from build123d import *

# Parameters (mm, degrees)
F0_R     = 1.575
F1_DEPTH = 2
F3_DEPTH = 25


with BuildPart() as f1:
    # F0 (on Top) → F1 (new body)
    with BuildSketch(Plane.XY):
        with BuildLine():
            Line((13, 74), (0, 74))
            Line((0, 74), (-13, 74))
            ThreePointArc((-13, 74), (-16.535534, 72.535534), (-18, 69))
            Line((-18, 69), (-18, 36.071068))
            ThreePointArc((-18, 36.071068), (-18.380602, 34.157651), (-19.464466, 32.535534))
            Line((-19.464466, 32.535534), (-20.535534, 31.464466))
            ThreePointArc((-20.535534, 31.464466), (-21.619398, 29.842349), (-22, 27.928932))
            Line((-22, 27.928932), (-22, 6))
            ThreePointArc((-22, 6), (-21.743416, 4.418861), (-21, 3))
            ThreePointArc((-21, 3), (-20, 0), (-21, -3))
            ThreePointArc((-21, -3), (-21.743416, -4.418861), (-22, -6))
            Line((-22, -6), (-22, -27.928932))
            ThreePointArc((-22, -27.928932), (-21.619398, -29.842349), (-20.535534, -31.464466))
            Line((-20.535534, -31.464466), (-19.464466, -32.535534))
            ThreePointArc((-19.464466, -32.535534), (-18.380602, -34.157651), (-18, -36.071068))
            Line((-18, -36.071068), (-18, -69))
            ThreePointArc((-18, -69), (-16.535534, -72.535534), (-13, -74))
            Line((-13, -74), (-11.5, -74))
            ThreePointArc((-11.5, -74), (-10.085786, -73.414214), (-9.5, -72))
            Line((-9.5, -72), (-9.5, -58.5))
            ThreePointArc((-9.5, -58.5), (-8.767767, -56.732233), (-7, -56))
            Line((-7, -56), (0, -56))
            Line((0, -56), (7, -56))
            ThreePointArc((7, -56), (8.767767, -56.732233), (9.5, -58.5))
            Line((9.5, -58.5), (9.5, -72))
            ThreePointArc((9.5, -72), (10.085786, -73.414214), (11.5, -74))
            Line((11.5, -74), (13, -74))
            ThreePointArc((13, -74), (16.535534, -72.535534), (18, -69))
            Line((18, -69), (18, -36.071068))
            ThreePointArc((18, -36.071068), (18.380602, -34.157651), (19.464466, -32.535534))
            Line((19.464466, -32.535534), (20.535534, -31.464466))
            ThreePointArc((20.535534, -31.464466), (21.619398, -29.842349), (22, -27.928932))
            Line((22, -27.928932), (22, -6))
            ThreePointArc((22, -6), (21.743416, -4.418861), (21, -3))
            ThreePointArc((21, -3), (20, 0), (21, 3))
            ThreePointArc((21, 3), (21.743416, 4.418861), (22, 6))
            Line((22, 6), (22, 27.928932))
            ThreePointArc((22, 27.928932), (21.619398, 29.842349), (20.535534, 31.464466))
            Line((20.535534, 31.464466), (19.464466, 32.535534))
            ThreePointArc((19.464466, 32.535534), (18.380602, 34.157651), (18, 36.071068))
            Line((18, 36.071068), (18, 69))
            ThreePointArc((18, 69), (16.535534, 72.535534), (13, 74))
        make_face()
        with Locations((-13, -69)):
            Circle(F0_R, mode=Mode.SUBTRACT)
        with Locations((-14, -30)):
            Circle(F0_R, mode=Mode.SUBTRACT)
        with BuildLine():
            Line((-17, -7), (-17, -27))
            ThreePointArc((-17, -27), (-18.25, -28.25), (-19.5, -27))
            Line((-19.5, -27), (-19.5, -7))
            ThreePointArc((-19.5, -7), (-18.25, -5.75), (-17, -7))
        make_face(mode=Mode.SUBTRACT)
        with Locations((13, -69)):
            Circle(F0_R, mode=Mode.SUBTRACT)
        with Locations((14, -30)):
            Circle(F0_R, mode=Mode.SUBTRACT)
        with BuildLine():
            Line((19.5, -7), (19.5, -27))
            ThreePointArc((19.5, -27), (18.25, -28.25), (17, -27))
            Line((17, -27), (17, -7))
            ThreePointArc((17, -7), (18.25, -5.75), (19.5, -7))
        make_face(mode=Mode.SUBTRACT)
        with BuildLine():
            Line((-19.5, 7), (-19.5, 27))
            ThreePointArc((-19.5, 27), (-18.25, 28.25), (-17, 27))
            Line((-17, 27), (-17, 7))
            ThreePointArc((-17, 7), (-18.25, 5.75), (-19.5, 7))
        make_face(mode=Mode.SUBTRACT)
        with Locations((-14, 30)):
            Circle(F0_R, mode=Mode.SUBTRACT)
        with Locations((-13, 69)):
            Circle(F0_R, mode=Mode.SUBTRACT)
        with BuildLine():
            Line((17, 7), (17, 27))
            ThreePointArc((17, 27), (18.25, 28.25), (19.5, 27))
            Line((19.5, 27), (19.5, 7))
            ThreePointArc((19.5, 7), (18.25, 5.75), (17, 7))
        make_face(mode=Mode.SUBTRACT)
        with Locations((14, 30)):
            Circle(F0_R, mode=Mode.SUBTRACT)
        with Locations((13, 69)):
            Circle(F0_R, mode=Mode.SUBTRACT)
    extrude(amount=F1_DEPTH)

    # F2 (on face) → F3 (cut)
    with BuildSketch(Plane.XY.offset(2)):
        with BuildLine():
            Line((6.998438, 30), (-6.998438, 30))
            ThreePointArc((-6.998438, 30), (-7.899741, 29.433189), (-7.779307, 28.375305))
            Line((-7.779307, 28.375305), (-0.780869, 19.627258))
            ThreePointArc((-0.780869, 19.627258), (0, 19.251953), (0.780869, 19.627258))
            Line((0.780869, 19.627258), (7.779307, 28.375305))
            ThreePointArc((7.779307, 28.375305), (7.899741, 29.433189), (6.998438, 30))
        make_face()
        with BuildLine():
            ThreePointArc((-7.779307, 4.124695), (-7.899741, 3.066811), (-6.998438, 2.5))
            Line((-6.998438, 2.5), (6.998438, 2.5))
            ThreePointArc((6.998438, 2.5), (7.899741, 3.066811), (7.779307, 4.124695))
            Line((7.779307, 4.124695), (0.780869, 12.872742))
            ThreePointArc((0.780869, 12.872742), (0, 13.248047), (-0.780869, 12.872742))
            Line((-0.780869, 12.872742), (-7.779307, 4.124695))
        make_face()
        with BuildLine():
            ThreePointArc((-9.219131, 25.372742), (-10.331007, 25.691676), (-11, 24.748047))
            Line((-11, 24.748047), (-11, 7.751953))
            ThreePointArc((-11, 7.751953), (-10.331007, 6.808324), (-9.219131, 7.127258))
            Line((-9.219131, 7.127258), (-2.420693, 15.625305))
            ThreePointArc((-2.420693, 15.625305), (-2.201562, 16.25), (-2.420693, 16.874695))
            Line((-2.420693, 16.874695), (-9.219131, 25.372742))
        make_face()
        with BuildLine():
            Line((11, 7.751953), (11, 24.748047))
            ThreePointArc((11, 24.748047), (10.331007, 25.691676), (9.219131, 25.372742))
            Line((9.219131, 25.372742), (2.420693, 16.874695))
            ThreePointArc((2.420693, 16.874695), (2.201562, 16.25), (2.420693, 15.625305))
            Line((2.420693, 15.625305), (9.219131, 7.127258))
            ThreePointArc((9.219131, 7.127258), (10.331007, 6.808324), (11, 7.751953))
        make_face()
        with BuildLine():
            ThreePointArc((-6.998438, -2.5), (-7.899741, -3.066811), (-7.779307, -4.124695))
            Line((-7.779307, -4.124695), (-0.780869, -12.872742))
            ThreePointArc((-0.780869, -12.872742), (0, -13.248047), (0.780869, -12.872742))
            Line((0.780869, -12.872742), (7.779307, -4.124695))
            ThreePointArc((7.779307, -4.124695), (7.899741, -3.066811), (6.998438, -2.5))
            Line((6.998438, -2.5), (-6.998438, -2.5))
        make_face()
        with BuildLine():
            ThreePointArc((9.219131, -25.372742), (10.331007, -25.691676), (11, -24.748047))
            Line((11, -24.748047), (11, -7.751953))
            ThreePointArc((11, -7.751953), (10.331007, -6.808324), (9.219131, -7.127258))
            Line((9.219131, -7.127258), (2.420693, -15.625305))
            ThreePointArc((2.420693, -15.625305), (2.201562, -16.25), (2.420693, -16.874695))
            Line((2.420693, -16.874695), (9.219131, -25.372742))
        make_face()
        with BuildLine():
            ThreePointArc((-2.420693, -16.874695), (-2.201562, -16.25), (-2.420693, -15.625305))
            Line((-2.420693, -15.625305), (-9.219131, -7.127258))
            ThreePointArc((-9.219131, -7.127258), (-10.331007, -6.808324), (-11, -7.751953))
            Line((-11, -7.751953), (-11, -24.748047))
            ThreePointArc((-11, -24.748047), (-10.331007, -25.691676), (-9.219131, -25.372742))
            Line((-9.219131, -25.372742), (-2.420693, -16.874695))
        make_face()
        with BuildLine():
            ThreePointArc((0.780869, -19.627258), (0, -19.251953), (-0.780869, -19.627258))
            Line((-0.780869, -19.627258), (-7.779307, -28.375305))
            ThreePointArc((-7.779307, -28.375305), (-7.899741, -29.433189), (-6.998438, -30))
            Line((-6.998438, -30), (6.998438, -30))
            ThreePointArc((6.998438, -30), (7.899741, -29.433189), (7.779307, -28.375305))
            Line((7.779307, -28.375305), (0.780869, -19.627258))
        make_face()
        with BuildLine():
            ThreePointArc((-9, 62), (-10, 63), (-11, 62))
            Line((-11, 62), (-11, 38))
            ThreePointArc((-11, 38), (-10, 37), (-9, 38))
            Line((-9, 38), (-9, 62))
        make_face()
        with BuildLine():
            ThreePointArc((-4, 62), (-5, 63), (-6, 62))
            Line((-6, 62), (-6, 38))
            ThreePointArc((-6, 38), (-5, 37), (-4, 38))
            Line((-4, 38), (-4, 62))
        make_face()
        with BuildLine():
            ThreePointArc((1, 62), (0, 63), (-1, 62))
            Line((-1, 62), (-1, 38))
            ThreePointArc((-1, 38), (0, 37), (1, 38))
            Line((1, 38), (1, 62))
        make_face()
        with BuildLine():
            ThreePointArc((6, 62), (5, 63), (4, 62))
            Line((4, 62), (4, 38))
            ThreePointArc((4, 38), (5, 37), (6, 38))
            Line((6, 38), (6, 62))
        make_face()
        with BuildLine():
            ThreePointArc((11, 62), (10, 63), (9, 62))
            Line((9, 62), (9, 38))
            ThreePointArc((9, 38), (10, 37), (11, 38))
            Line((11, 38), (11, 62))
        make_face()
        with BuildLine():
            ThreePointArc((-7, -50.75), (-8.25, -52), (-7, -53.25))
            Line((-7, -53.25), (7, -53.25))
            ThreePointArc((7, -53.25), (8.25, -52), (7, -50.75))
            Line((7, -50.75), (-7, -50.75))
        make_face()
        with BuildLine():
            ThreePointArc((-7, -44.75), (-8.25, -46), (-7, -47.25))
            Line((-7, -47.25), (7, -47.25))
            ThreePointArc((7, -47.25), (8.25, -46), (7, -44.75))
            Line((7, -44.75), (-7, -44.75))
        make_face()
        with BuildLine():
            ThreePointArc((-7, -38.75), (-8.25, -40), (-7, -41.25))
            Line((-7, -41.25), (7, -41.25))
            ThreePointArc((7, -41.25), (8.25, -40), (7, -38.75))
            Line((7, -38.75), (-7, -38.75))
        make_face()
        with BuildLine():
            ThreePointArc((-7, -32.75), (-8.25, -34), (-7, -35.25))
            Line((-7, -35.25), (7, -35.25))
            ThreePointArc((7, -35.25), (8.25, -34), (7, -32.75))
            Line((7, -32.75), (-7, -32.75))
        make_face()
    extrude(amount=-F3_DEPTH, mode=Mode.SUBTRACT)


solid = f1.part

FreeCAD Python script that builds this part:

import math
import FreeCAD as App
import Part
import Sketcher
from FreeCAD import Vector

doc = App.newDocument("Part")
body = doc.addObject("PartDesign::Body", "Body")

# Sketch on XY plane
sketch1 = body.newObject("Sketcher::SketchObject", "Sketch")
sketch1.AttachmentSupport = (doc.getObject("XY_Plane"), [""])
sketch1.MapMode = "FlatFace"
sketch1.addGeometry([
    Part.LineSegment(Vector(13, 74, 0), Vector(-13, 74, 0)),  # 0
    Part.ArcOfCircle(Part.Circle(Vector(-13, 69, 0), Vector(0, 0, 1), 5), math.radians(89.999996), math.radians(180.000004)),  # 1
    Part.LineSegment(Vector(-18, 69, 0), Vector(-18, 36.071068, 0)),  # 2
    Part.ArcOfCircle(Part.Circle(Vector(-22.999998, 36.071067, 0), Vector(0, 0, 1), 4.999998), math.radians(-45.000009), math.radians(0.000012)),  # 3
    Part.LineSegment(Vector(-19.464466, 32.535534, 0), Vector(-20.535534, 31.464466, 0)),  # 4
    Part.ArcOfCircle(Part.Circle(Vector(-17.000002, 27.928933, 0), Vector(0, 0, 1), 4.999998), math.radians(134.999991), math.radians(180.000012)),  # 5
    Part.LineSegment(Vector(-22, 27.928932, 0), Vector(-22, 6, 0)),  # 6
    Part.ArcOfCircle(Part.Circle(Vector(-16.999992, 6.000003, 0), Vector(0, 0, 1), 5.000008), math.radians(-179.999971), math.radians(-143.130131)),  # 7
    Part.ArcOfCircle(Part.Circle(Vector(-25, 0, 0), Vector(0, 0, 1), 5), math.radians(-36.869898), math.radians(36.869898)),  # 8
    Part.ArcOfCircle(Part.Circle(Vector(-16.999992, -6.000003, 0), Vector(0, 0, 1), 5.000008), math.radians(143.130131), math.radians(179.999971)),  # 9
    Part.LineSegment(Vector(-22, -6, 0), Vector(-22, -27.928932, 0)),  # 10
    Part.ArcOfCircle(Part.Circle(Vector(-17.000002, -27.928933, 0), Vector(0, 0, 1), 4.999998), math.radians(179.999988), math.radians(225.000009)),  # 11
    Part.LineSegment(Vector(-20.535534, -31.464466, 0), Vector(-19.464466, -32.535534, 0)),  # 12
    Part.ArcOfCircle(Part.Circle(Vector(-22.999998, -36.071067, 0), Vector(0, 0, 1), 4.999998), math.radians(-0.000012), math.radians(45.000009)),  # 13
    Part.LineSegment(Vector(-18, -36.071068, 0), Vector(-18, -69, 0)),  # 14
    Part.ArcOfCircle(Part.Circle(Vector(-13, -69, 0), Vector(0, 0, 1), 5), math.radians(179.999996), math.radians(270.000004)),  # 15
    Part.LineSegment(Vector(-13, -74, 0), Vector(-11.5, -74, 0)),  # 16
    Part.ArcOfCircle(Part.Circle(Vector(-11.499999, -72.000001, 0), Vector(0, 0, 1), 1.999999), math.radians(-90.000043), math.radians(0.000043)),  # 17
    Part.LineSegment(Vector(-9.5, -72, 0), Vector(-9.5, -58.5, 0)),  # 18
    Part.ArcOfCircle(Part.Circle(Vector(-7, -58.5, 0), Vector(0, 0, 1), 2.5), math.radians(89.999996), math.radians(180.000004)),  # 19
    Part.LineSegment(Vector(-7, -56, 0), Vector(7, -56, 0)),  # 20
    Part.ArcOfCircle(Part.Circle(Vector(7, -58.5, 0), Vector(0, 0, 1), 2.5), math.radians(-0.000004), math.radians(90.000004)),  # 21
    Part.LineSegment(Vector(9.5, -58.5, 0), Vector(9.5, -72, 0)),  # 22
    Part.ArcOfCircle(Part.Circle(Vector(11.499999, -72.000001, 0), Vector(0, 0, 1), 1.999999), math.radians(179.999957), math.radians(270.000043)),  # 23
    Part.LineSegment(Vector(11.5, -74, 0), Vector(13, -74, 0)),  # 24
    Part.ArcOfCircle(Part.Circle(Vector(13, -69, 0), Vector(0, 0, 1), 5), math.radians(-90.000004), math.radians(0.000004)),  # 25
    Part.LineSegment(Vector(18, -69, 0), Vector(18, -36.071068, 0)),  # 26
    Part.ArcOfCircle(Part.Circle(Vector(22.999998, -36.071067, 0), Vector(0, 0, 1), 4.999998), math.radians(134.999991), math.radians(180.000012)),  # 27
    Part.LineSegment(Vector(19.464466, -32.535534, 0), Vector(20.535534, -31.464466, 0)),  # 28
    Part.ArcOfCircle(Part.Circle(Vector(17.000002, -27.928933, 0), Vector(0, 0, 1), 4.999998), math.radians(-45.000009), math.radians(0.000012)),  # 29
    Part.LineSegment(Vector(22, -27.928932, 0), Vector(22, -6, 0)),  # 30
    Part.ArcOfCircle(Part.Circle(Vector(16.999992, -6.000003, 0), Vector(0, 0, 1), 5.000008), math.radians(0.000029), math.radians(36.869869)),  # 31
    Part.ArcOfCircle(Part.Circle(Vector(25, 0, 0), Vector(0, 0, 1), 5), math.radians(143.130102), math.radians(216.869898)),  # 32
    Part.ArcOfCircle(Part.Circle(Vector(16.999992, 6.000003, 0), Vector(0, 0, 1), 5.000008), math.radians(-36.869869), math.radians(-0.000029)),  # 33
    Part.LineSegment(Vector(22, 6, 0), Vector(22, 27.928932, 0)),  # 34
    Part.ArcOfCircle(Part.Circle(Vector(17.000002, 27.928933, 0), Vector(0, 0, 1), 4.999998), math.radians(-0.000012), math.radians(45.000009)),  # 35
    Part.LineSegment(Vector(20.535534, 31.464466, 0), Vector(19.464466, 32.535534, 0)),  # 36
    Part.ArcOfCircle(Part.Circle(Vector(22.999998, 36.071067, 0), Vector(0, 0, 1), 4.999998), math.radians(179.999988), math.radians(225.000009)),  # 37
    Part.LineSegment(Vector(18, 36.071068, 0), Vector(18, 69, 0)),  # 38
    Part.ArcOfCircle(Part.Circle(Vector(13, 69, 0), Vector(0, 0, 1), 5), math.radians(-0.000004), math.radians(90.000004)),  # 39
    Part.Circle(Vector(-13, -69, 0), Vector(0, 0, 1), 1.575),  # 40
    Part.Circle(Vector(-14, -30, 0), Vector(0, 0, 1), 1.575),  # 41
    Part.ArcOfCircle(Part.Circle(Vector(-18.25, -7, 0), Vector(0, 0, 1), 1.25), math.radians(0), math.radians(180)),  # 42
    Part.LineSegment(Vector(-17, -7, 0), Vector(-17, -27, 0)),  # 43
    Part.ArcOfCircle(Part.Circle(Vector(-18.25, -27, 0), Vector(0, 0, 1), 1.25), math.radians(180), math.radians(360)),  # 44
    Part.LineSegment(Vector(-19.5, -27, 0), Vector(-19.5, -7, 0)),  # 45
    Part.Circle(Vector(13, -69, 0), Vector(0, 0, 1), 1.575),  # 46
    Part.Circle(Vector(14, -30, 0), Vector(0, 0, 1), 1.575),  # 47
    Part.ArcOfCircle(Part.Circle(Vector(18.25, -7, 0), Vector(0, 0, 1), 1.25), math.radians(0), math.radians(180)),  # 48
    Part.LineSegment(Vector(19.5, -7, 0), Vector(19.5, -27, 0)),  # 49
    Part.ArcOfCircle(Part.Circle(Vector(18.25, -27, 0), Vector(0, 0, 1), 1.25), math.radians(180), math.radians(360)),  # 50
    Part.LineSegment(Vector(17, -27, 0), Vector(17, -7, 0)),  # 51
    Part.ArcOfCircle(Part.Circle(Vector(-18.25, 7, 0), Vector(0, 0, 1), 1.25), math.radians(180), math.radians(360)),  # 52
    Part.LineSegment(Vector(-19.5, 7, 0), Vector(-19.5, 27, 0)),  # 53
    Part.ArcOfCircle(Part.Circle(Vector(-18.25, 27, 0), Vector(0, 0, 1), 1.25), math.radians(0), math.radians(180)),  # 54
    Part.LineSegment(Vector(-17, 27, 0), Vector(-17, 7, 0)),  # 55
    Part.Circle(Vector(-14, 30, 0), Vector(0, 0, 1), 1.575),  # 56
    Part.Circle(Vector(-13, 69, 0), Vector(0, 0, 1), 1.575),  # 57
    Part.ArcOfCircle(Part.Circle(Vector(18.25, 7, 0), Vector(0, 0, 1), 1.25), math.radians(180), math.radians(360)),  # 58
    Part.LineSegment(Vector(17, 7, 0), Vector(17, 27, 0)),  # 59
    Part.ArcOfCircle(Part.Circle(Vector(18.25, 27, 0), Vector(0, 0, 1), 1.25), math.radians(0), math.radians(180)),  # 60
    Part.LineSegment(Vector(19.5, 27, 0), Vector(19.5, 7, 0)),  # 61
    Part.Circle(Vector(14, 30, 0), Vector(0, 0, 1), 1.575),  # 62
    Part.Circle(Vector(13, 69, 0), Vector(0, 0, 1), 1.575),  # 63
], False)
sketch1.addConstraint([
    Sketcher.Constraint("Tangent", 0, 2, 1, 1),
    Sketcher.Constraint("Tangent", 1, 2, 2, 1),
    Sketcher.Constraint("Tangent", 2, 2, 3, 2),
    Sketcher.Constraint("Tangent", 3, 1, 4, 1),
    Sketcher.Constraint("Tangent", 4, 2, 5, 1),
    Sketcher.Constraint("Tangent", 5, 2, 6, 1),
    Sketcher.Constraint("Tangent", 6, 2, 7, 1),
    Sketcher.Constraint("Tangent", 7, 2, 8, 2),
    Sketcher.Constraint("Tangent", 8, 1, 9, 1),
    Sketcher.Constraint("Tangent", 9, 2, 10, 1),
    Sketcher.Constraint("Tangent", 10, 2, 11, 1),
    Sketcher.Constraint("Tangent", 11, 2, 12, 1),
    Sketcher.Constraint("Tangent", 12, 2, 13, 2),
    Sketcher.Constraint("Tangent", 13, 1, 14, 1),
    Sketcher.Constraint("Tangent", 14, 2, 15, 1),
    Sketcher.Constraint("Tangent", 15, 2, 16, 1),
    Sketcher.Constraint("Tangent", 16, 2, 17, 1),
    Sketcher.Constraint("Tangent", 17, 2, 18, 1),
    Sketcher.Constraint("Tangent", 18, 2, 19, 2),
    Sketcher.Constraint("Tangent", 19, 1, 20, 1),
    Sketcher.Constraint("Tangent", 20, 2, 21, 2),
    Sketcher.Constraint("Tangent", 21, 1, 22, 1),
    Sketcher.Constraint("Tangent", 22, 2, 23, 1),
    Sketcher.Constraint("Tangent", 23, 2, 24, 1),
    Sketcher.Constraint("Tangent", 24, 2, 25, 1),
    Sketcher.Constraint("Tangent", 25, 2, 26, 1),
    Sketcher.Constraint("Tangent", 26, 2, 27, 2),
    Sketcher.Constraint("Tangent", 27, 1, 28, 1),
    Sketcher.Constraint("Tangent", 28, 2, 29, 1),
    Sketcher.Constraint("Tangent", 29, 2, 30, 1),
    Sketcher.Constraint("Tangent", 30, 2, 31, 1),
    Sketcher.Constraint("Tangent", 31, 2, 32, 2),
    Sketcher.Constraint("Tangent", 32, 1, 33, 1),
    Sketcher.Constraint("Tangent", 33, 2, 34, 1),
    Sketcher.Constraint("Tangent", 34, 2, 35, 1),
    Sketcher.Constraint("Tangent", 35, 2, 36, 1),
    Sketcher.Constraint("Tangent", 36, 2, 37, 2),
    Sketcher.Constraint("Tangent", 37, 1, 38, 1),
    Sketcher.Constraint("Tangent", 38, 2, 39, 1),
    Sketcher.Constraint("Tangent", 39, 2, 0, 1),
    Sketcher.Constraint("Tangent", 42, 1, 43, 1),
    Sketcher.Constraint("Tangent", 43, 2, 44, 2),
    Sketcher.Constraint("Tangent", 44, 1, 45, 1),
    Sketcher.Constraint("Tangent", 45, 2, 42, 2),
    Sketcher.Constraint("Tangent", 48, 1, 49, 1),
    Sketcher.Constraint("Tangent", 49, 2, 50, 2),
    Sketcher.Constraint("Tangent", 50, 1, 51, 1),
    Sketcher.Constraint("Tangent", 51, 2, 48, 2),
    Sketcher.Constraint("Tangent", 52, 1, 53, 1),
    Sketcher.Constraint("Tangent", 53, 2, 54, 2),
    Sketcher.Constraint("Tangent", 54, 1, 55, 1),
    Sketcher.Constraint("Tangent", 55, 2, 52, 2),
    Sketcher.Constraint("Tangent", 58, 1, 59, 1),
    Sketcher.Constraint("Tangent", 59, 2, 60, 2),
    Sketcher.Constraint("Tangent", 60, 1, 61, 1),
    Sketcher.Constraint("Tangent", 61, 2, 58, 2),
    Sketcher.Constraint("Horizontal", 0),
    Sketcher.Constraint("Vertical", 2),
    Sketcher.Constraint("Vertical", 6),
    Sketcher.Constraint("Vertical", 10),
    Sketcher.Constraint("Vertical", 14),
    Sketcher.Constraint("Horizontal", 16),
    Sketcher.Constraint("Vertical", 18),
    Sketcher.Constraint("Horizontal", 20),
    Sketcher.Constraint("Vertical", 22),
    Sketcher.Constraint("Horizontal", 24),
    Sketcher.Constraint("Vertical", 26),
    Sketcher.Constraint("Vertical", 30),
    Sketcher.Constraint("Vertical", 34),
    Sketcher.Constraint("Vertical", 38),
    Sketcher.Constraint("Vertical", 43),
    Sketcher.Constraint("Vertical", 45),
    Sketcher.Constraint("Vertical", 49),
    Sketcher.Constraint("Vertical", 51),
    Sketcher.Constraint("Vertical", 53),
    Sketcher.Constraint("Vertical", 55),
    Sketcher.Constraint("Vertical", 59),
    Sketcher.Constraint("Vertical", 61),
    Sketcher.Constraint("Coincident", 40, 3, 15, 3),
    Sketcher.Constraint("Coincident", 46, 3, 25, 3),
    Sketcher.Constraint("Coincident", 57, 3, 1, 3),
    Sketcher.Constraint("Coincident", 63, 3, 39, 3),
    Sketcher.Constraint("Equal", 1, 3),
    Sketcher.Constraint("Equal", 3, 5),
    Sketcher.Constraint("Equal", 1, 8),
    Sketcher.Constraint("Equal", 7, 9),
    Sketcher.Constraint("Equal", 5, 11),
    Sketcher.Constraint("Equal", 11, 13),
    Sketcher.Constraint("Equal", 13, 15),
    Sketcher.Constraint("Equal", 19, 21),
    Sketcher.Constraint("Equal", 17, 23),
    Sketcher.Constraint("Equal", 15, 25),
    Sketcher.Constraint("Equal", 25, 27),
    Sketcher.Constraint("Equal", 27, 29),
    Sketcher.Constraint("Equal", 9, 31),
    Sketcher.Constraint("Equal", 25, 32),
    Sketcher.Constraint("Equal", 31, 33),
    Sketcher.Constraint("Equal", 29, 35),
    Sketcher.Constraint("Equal", 35, 37),
    Sketcher.Constraint("Equal", 37, 39),
    Sketcher.Constraint("Equal", 40, 41),
    Sketcher.Constraint("Equal", 41, 46),
    Sketcher.Constraint("Equal", 46, 47),
    Sketcher.Constraint("Equal", 44, 48),
    Sketcher.Constraint("Equal", 50, 52),
    Sketcher.Constraint("Equal", 47, 56),
    Sketcher.Constraint("Equal", 56, 57),
    Sketcher.Constraint("Equal", 54, 58),
    Sketcher.Constraint("Equal", 57, 62),
    Sketcher.Constraint("Equal", 62, 63),
    Sketcher.Constraint("Symmetric", 1, 3, 25, 3, -1, 1),
    Sketcher.Constraint("Symmetric", 5, 3, 29, 3, -1, 1),
    Sketcher.Constraint("Symmetric", 8, 3, 32, 3, -1, 1),
    Sketcher.Constraint("Symmetric", 11, 3, 35, 3, -1, 1),
    Sketcher.Constraint("Symmetric", 13, 3, 37, 3, -1, 1),
    Sketcher.Constraint("Symmetric", 48, 3, 52, 3, -1, 1),
    Sketcher.Constraint("Symmetric", 47, 3, 56, 3, -1, 1),
    Sketcher.Constraint("Symmetric", 42, 3, 58, 3, -1, 1),
    Sketcher.Constraint("Symmetric", 41, 3, 62, 3, -1, 1),
    Sketcher.Constraint("Symmetric", 17, 3, 23, 3, -2),
    Sketcher.Constraint("Symmetric", 13, 3, 27, 3, -2),
    Sketcher.Constraint("Symmetric", 11, 3, 29, 3, -2),
    Sketcher.Constraint("Symmetric", 41, 3, 47, 3, -2),
    Sketcher.Constraint("Symmetric", 42, 3, 48, 3, -2),
    Sketcher.Constraint("PointOnObject", 8, 3, -1),
    Sketcher.Constraint("Perpendicular", 4, 12),
    Sketcher.Constraint("Perpendicular", 12, 28),
    Sketcher.Constraint("Horizontal", 44, 3, 50, 3),
    Sketcher.Constraint("Horizontal", 54, 3, 60, 3),
    Sketcher.Constraint("Equal", 51, 53),
    Sketcher.Constraint("Radius", 1, 5.0),
    Sketcher.Constraint("Radius", 17, 1.999999),
    Sketcher.Constraint("Radius", 19, 2.5),
    Sketcher.Constraint("Diameter", 40, 3.15),
    Sketcher.Constraint("DistanceX", 0, 2, 0, 1, 26.0),
    Sketcher.Constraint("DistanceX", 20, 1, 20, 2, 14.0),
    Sketcher.Constraint("DistanceY", 43, 2, 43, 1, 20.0),
    Sketcher.Constraint("Radius", 42, 1.25),
    Sketcher.Constraint("DistanceY", 18, 1, 18, 2, 13.5),
    Sketcher.Constraint("DistanceY", -1, 1, 1, 3, 69.0),
    Sketcher.Constraint("DistanceX", 8, 3, -1, 1, 25.0),
    Sketcher.Constraint("DistanceX", 41, 3, -1, 1, 14.0),
    Sketcher.Constraint("DistanceY", 41, 3, -1, 1, 30.0),
    Sketcher.Constraint("DistanceY", 42, 3, -1, 1, 7.0),
    Sketcher.Constraint("DistanceX", 5, 2, -1, 1, 22.0),
    Sketcher.Constraint("DistanceY", -1, 1, 6, 2, 6.0),
    Sketcher.Constraint("DistanceX", 42, 1, -1, 1, 17.0),
    Sketcher.Constraint("DistanceY", 6, 2, 6, 1, 21.928932),
])
pad1 = body.newObject("PartDesign::Pad", "Pad")
pad1.Profile = sketch1
pad1.Length = 2

# Sketch on XY plane
sketch2 = body.newObject("Sketcher::SketchObject", "Sketch001")
sketch2.AttachmentSupport = (doc.getObject("XY_Plane"), [""])
sketch2.MapMode = "FlatFace"
sketch2.AttachmentOffset = App.Placement(Vector(0, 0, 2), App.Rotation())
sketch2.addGeometry([
    Part.LineSegment(Vector(6.998438, 30, 0), Vector(-6.998438, 30, 0)),  # 0
    Part.ArcOfCircle(Part.Circle(Vector(-6.998438, 29, 0), Vector(0, 0, 1), 1), math.radians(90.000013), math.radians(218.659783)),  # 1
    Part.LineSegment(Vector(-7.779307, 28.375305, 0), Vector(-0.780869, 19.627258, 0)),  # 2
    Part.ArcOfCircle(Part.Circle(Vector(0, 20.251953, 0), Vector(0, 0, 1), 1), math.radians(-141.340187), math.radians(-38.659813)),  # 3
    Part.LineSegment(Vector(0.780869, 19.627258, 0), Vector(7.779307, 28.375305, 0)),  # 4
    Part.ArcOfCircle(Part.Circle(Vector(6.998438, 29, 0), Vector(0, 0, 1), 1), math.radians(-38.659783), math.radians(89.999987)),  # 5
    Part.ArcOfCircle(Part.Circle(Vector(-6.998438, 3.5, 0), Vector(0, 0, 1), 1), math.radians(141.340217), math.radians(269.999987)),  # 6
    Part.LineSegment(Vector(-6.998438, 2.5, 0), Vector(6.998438, 2.5, 0)),  # 7
    Part.ArcOfCircle(Part.Circle(Vector(6.998438, 3.5, 0), Vector(0, 0, 1), 1), math.radians(-89.999987), math.radians(38.659783)),  # 8
    Part.LineSegment(Vector(7.779307, 4.124695, 0), Vector(0.780869, 12.872742, 0)),  # 9
    Part.ArcOfCircle(Part.Circle(Vector(0, 12.248047, 0), Vector(0, 0, 1), 1), math.radians(38.659813), math.radians(141.340187)),  # 10
    Part.LineSegment(Vector(-0.780869, 12.872742, 0), Vector(-7.779307, 4.124695, 0)),  # 11
    Part.ArcOfCircle(Part.Circle(Vector(-10, 24.748048, 0), Vector(0, 0, 1), 1), math.radians(38.659752), math.radians(180.00005)),  # 12
    Part.LineSegment(Vector(-11, 24.748047, 0), Vector(-11, 7.751953, 0)),  # 13
    Part.ArcOfCircle(Part.Circle(Vector(-10, 7.751952, 0), Vector(0, 0, 1), 1), math.radians(179.99995), math.radians(321.340248)),  # 14
    Part.LineSegment(Vector(-9.219131, 7.127258, 0), Vector(-2.420693, 15.625305, 0)),  # 15
    Part.ArcOfCircle(Part.Circle(Vector(-3.201563, 16.25, 0), Vector(0, 0, 1), 1.000001), math.radians(-38.65978), math.radians(38.65978)),  # 16
    Part.LineSegment(Vector(-2.420693, 16.874695, 0), Vector(-9.219131, 25.372742, 0)),  # 17
    Part.LineSegment(Vector(11, 7.751953, 0), Vector(11, 24.748047, 0)),  # 18
    Part.ArcOfCircle(Part.Circle(Vector(10, 24.748048, 0), Vector(0, 0, 1), 1), math.radians(-0.00005), math.radians(141.340248)),  # 19
    Part.LineSegment(Vector(9.219131, 25.372742, 0), Vector(2.420693, 16.874695, 0)),  # 20
    Part.ArcOfCircle(Part.Circle(Vector(3.201563, 16.25, 0), Vector(0, 0, 1), 1.000001), math.radians(141.34022), math.radians(218.65978)),  # 21
    Part.LineSegment(Vector(2.420693, 15.625305, 0), Vector(9.219131, 7.127258, 0)),  # 22
    Part.ArcOfCircle(Part.Circle(Vector(10, 7.751952, 0), Vector(0, 0, 1), 1), math.radians(-141.340248), math.radians(0.00005)),  # 23
    Part.ArcOfCircle(Part.Circle(Vector(-6.998438, -3.5, 0), Vector(0, 0, 1), 1), math.radians(90.000013), math.radians(218.659783)),  # 24
    Part.LineSegment(Vector(-7.779307, -4.124695, 0), Vector(-0.780869, -12.872742, 0)),  # 25
    Part.ArcOfCircle(Part.Circle(Vector(0, -12.248047, 0), Vector(0, 0, 1), 1), math.radians(-141.340187), math.radians(-38.659813)),  # 26
    Part.LineSegment(Vector(0.780869, -12.872742, 0), Vector(7.779307, -4.124695, 0)),  # 27
    Part.ArcOfCircle(Part.Circle(Vector(6.998438, -3.5, 0), Vector(0, 0, 1), 1), math.radians(-38.659783), math.radians(89.999987)),  # 28
    Part.LineSegment(Vector(6.998438, -2.5, 0), Vector(-6.998438, -2.5, 0)),  # 29
    Part.ArcOfCircle(Part.Circle(Vector(10, -24.748048, 0), Vector(0, 0, 1), 1), math.radians(-141.340248), math.radians(0.00005)),  # 30
    Part.LineSegment(Vector(11, -24.748047, 0), Vector(11, -7.751953, 0)),  # 31
    Part.ArcOfCircle(Part.Circle(Vector(10, -7.751952, 0), Vector(0, 0, 1), 1), math.radians(-0.00005), math.radians(141.340248)),  # 32
    Part.LineSegment(Vector(9.219131, -7.127258, 0), Vector(2.420693, -15.625305, 0)),  # 33
    Part.ArcOfCircle(Part.Circle(Vector(3.201563, -16.25, 0), Vector(0, 0, 1), 1.000001), math.radians(141.34022), math.radians(218.65978)),  # 34
    Part.LineSegment(Vector(2.420693, -16.874695, 0), Vector(9.219131, -25.372742, 0)),  # 35
    Part.ArcOfCircle(Part.Circle(Vector(-3.201563, -16.25, 0), Vector(0, 0, 1), 1.000001), math.radians(-38.65978), math.radians(38.65978)),  # 36
    Part.LineSegment(Vector(-2.420693, -15.625305, 0), Vector(-9.219131, -7.127258, 0)),  # 37
    Part.ArcOfCircle(Part.Circle(Vector(-10, -7.751952, 0), Vector(0, 0, 1), 1), math.radians(38.659752), math.radians(180.00005)),  # 38
    Part.LineSegment(Vector(-11, -7.751953, 0), Vector(-11, -24.748047, 0)),  # 39
    Part.ArcOfCircle(Part.Circle(Vector(-10, -24.748048, 0), Vector(0, 0, 1), 1), math.radians(179.99995), math.radians(321.340248)),  # 40
    Part.LineSegment(Vector(-9.219131, -25.372742, 0), Vector(-2.420693, -16.874695, 0)),  # 41
    Part.ArcOfCircle(Part.Circle(Vector(0, -20.251953, 0), Vector(0, 0, 1), 1), math.radians(38.659813), math.radians(141.340187)),  # 42
    Part.LineSegment(Vector(-0.780869, -19.627258, 0), Vector(-7.779307, -28.375305, 0)),  # 43
    Part.ArcOfCircle(Part.Circle(Vector(-6.998438, -29, 0), Vector(0, 0, 1), 1), math.radians(141.340217), math.radians(269.999987)),  # 44
    Part.LineSegment(Vector(-6.998438, -30, 0), Vector(6.998438, -30, 0)),  # 45
    Part.ArcOfCircle(Part.Circle(Vector(6.998438, -29, 0), Vector(0, 0, 1), 1), math.radians(-89.999987), math.radians(38.659783)),  # 46
    Part.LineSegment(Vector(7.779307, -28.375305, 0), Vector(0.780869, -19.627258, 0)),  # 47
    Part.ArcOfCircle(Part.Circle(Vector(-10, 62, 0), Vector(0, 0, 1), 1), math.radians(0), math.radians(180)),  # 48
    Part.LineSegment(Vector(-11, 62, 0), Vector(-11, 38, 0)),  # 49
    Part.ArcOfCircle(Part.Circle(Vector(-10, 38, 0), Vector(0, 0, 1), 1), math.radians(180), math.radians(360)),  # 50
    Part.LineSegment(Vector(-9, 38, 0), Vector(-9, 62, 0)),  # 51
    Part.ArcOfCircle(Part.Circle(Vector(-5, 62, 0), Vector(0, 0, 1), 1), math.radians(0), math.radians(180)),  # 52
    Part.LineSegment(Vector(-6, 62, 0), Vector(-6, 38, 0)),  # 53
    Part.ArcOfCircle(Part.Circle(Vector(-5, 38, 0), Vector(0, 0, 1), 1), math.radians(180), math.radians(360)),  # 54
    Part.LineSegment(Vector(-4, 38, 0), Vector(-4, 62, 0)),  # 55
    Part.ArcOfCircle(Part.Circle(Vector(0, 62, 0), Vector(0, 0, 1), 1), math.radians(0), math.radians(180)),  # 56
    Part.LineSegment(Vector(-1, 62, 0), Vector(-1, 38, 0)),  # 57
    Part.ArcOfCircle(Part.Circle(Vector(0, 38, 0), Vector(0, 0, 1), 1), math.radians(180), math.radians(360)),  # 58
    Part.LineSegment(Vector(1, 38, 0), Vector(1, 62, 0)),  # 59
    Part.ArcOfCircle(Part.Circle(Vector(5, 62, 0), Vector(0, 0, 1), 1), math.radians(0), math.radians(180)),  # 60
    Part.LineSegment(Vector(4, 62, 0), Vector(4, 38, 0)),  # 61
    Part.ArcOfCircle(Part.Circle(Vector(5, 38, 0), Vector(0, 0, 1), 1), math.radians(180), math.radians(360)),  # 62
    Part.LineSegment(Vector(6, 38, 0), Vector(6, 62, 0)),  # 63
    Part.ArcOfCircle(Part.Circle(Vector(10, 62, 0), Vector(0, 0, 1), 1), math.radians(0), math.radians(180)),  # 64
    Part.LineSegment(Vector(9, 62, 0), Vector(9, 38, 0)),  # 65
    Part.ArcOfCircle(Part.Circle(Vector(10, 38, 0), Vector(0, 0, 1), 1), math.radians(180), math.radians(360)),  # 66
    Part.LineSegment(Vector(11, 38, 0), Vector(11, 62, 0)),  # 67
    Part.ArcOfCircle(Part.Circle(Vector(-7, -52, 0), Vector(0, 0, 1), 1.25), math.radians(90), math.radians(270)),  # 68
    Part.LineSegment(Vector(-7, -53.25, 0), Vector(7, -53.25, 0)),  # 69
    Part.ArcOfCircle(Part.Circle(Vector(7, -52, 0), Vector(0, 0, 1), 1.25), math.radians(-90), math.radians(90)),  # 70
    Part.LineSegment(Vector(7, -50.75, 0), Vector(-7, -50.75, 0)),  # 71
    Part.ArcOfCircle(Part.Circle(Vector(-7, -46, 0), Vector(0, 0, 1), 1.25), math.radians(90), math.radians(270)),  # 72
    Part.LineSegment(Vector(-7, -47.25, 0), Vector(7, -47.25, 0)),  # 73
    Part.ArcOfCircle(Part.Circle(Vector(7, -46, 0), Vector(0, 0, 1), 1.25), math.radians(-90), math.radians(90)),  # 74
    Part.LineSegment(Vector(7, -44.75, 0), Vector(-7, -44.75, 0)),  # 75
    Part.ArcOfCircle(Part.Circle(Vector(-7, -40, 0), Vector(0, 0, 1), 1.25), math.radians(90), math.radians(270)),  # 76
    Part.LineSegment(Vector(-7, -41.25, 0), Vector(7, -41.25, 0)),  # 77
    Part.ArcOfCircle(Part.Circle(Vector(7, -40, 0), Vector(0, 0, 1), 1.25), math.radians(-90), math.radians(90)),  # 78
    Part.LineSegment(Vector(7, -38.75, 0), Vector(-7, -38.75, 0)),  # 79
    Part.ArcOfCircle(Part.Circle(Vector(-7, -34, 0), Vector(0, 0, 1), 1.25), math.radians(90), math.radians(270)),  # 80
    Part.LineSegment(Vector(-7, -35.25, 0), Vector(7, -35.25, 0)),  # 81
    Part.ArcOfCircle(Part.Circle(Vector(7, -34, 0), Vector(0, 0, 1), 1.25), math.radians(-90), math.radians(90)),  # 82
    Part.LineSegment(Vector(7, -32.75, 0), Vector(-7, -32.75, 0)),  # 83
], False)
sketch2.addConstraint([
    Sketcher.Constraint("Tangent", 0, 2, 1, 1),
    Sketcher.Constraint("Tangent", 1, 2, 2, 1),
    Sketcher.Constraint("Tangent", 2, 2, 3, 1),
    Sketcher.Constraint("Tangent", 3, 2, 4, 1),
    Sketcher.Constraint("Tangent", 4, 2, 5, 1),
    Sketcher.Constraint("Tangent", 5, 2, 0, 1),
    Sketcher.Constraint("Tangent", 6, 2, 7, 1),
    Sketcher.Constraint("Tangent", 7, 2, 8, 1),
    Sketcher.Constraint("Tangent", 8, 2, 9, 1),
    Sketcher.Constraint("Tangent", 9, 2, 10, 1),
    Sketcher.Constraint("Tangent", 10, 2, 11, 1),
    Sketcher.Constraint("Tangent", 11, 2, 6, 1),
    Sketcher.Constraint("Tangent", 12, 2, 13, 1),
    Sketcher.Constraint("Tangent", 13, 2, 14, 1),
    Sketcher.Constraint("Tangent", 14, 2, 15, 1),
    Sketcher.Constraint("Tangent", 15, 2, 16, 1),
    Sketcher.Constraint("Tangent", 16, 2, 17, 1),
    Sketcher.Constraint("Tangent", 17, 2, 12, 1),
    Sketcher.Constraint("Tangent", 18, 2, 19, 1),
    Sketcher.Constraint("Tangent", 19, 2, 20, 1),
    Sketcher.Constraint("Tangent", 20, 2, 21, 1),
    Sketcher.Constraint("Tangent", 21, 2, 22, 1),
    Sketcher.Constraint("Tangent", 22, 2, 23, 1),
    Sketcher.Constraint("Tangent", 23, 2, 18, 1),
    Sketcher.Constraint("Tangent", 24, 2, 25, 1),
    Sketcher.Constraint("Tangent", 25, 2, 26, 1),
    Sketcher.Constraint("Tangent", 26, 2, 27, 1),
    Sketcher.Constraint("Tangent", 27, 2, 28, 1),
    Sketcher.Constraint("Tangent", 28, 2, 29, 1),
    Sketcher.Constraint("Tangent", 29, 2, 24, 1),
    Sketcher.Constraint("Tangent", 30, 2, 31, 1),
    Sketcher.Constraint("Tangent", 31, 2, 32, 1),
    Sketcher.Constraint("Tangent", 32, 2, 33, 1),
    Sketcher.Constraint("Tangent", 33, 2, 34, 1),
    Sketcher.Constraint("Tangent", 34, 2, 35, 1),
    Sketcher.Constraint("Tangent", 35, 2, 30, 1),
    Sketcher.Constraint("Tangent", 36, 2, 37, 1),
    Sketcher.Constraint("Tangent", 37, 2, 38, 1),
    Sketcher.Constraint("Tangent", 38, 2, 39, 1),
    Sketcher.Constraint("Tangent", 39, 2, 40, 1),
    Sketcher.Constraint("Tangent", 40, 2, 41, 1),
    Sketcher.Constraint("Tangent", 41, 2, 36, 1),
    Sketcher.Constraint("Tangent", 42, 2, 43, 1),
    Sketcher.Constraint("Tangent", 43, 2, 44, 1),
    Sketcher.Constraint("Tangent", 44, 2, 45, 1),
    Sketcher.Constraint("Tangent", 45, 2, 46, 1),
    Sketcher.Constraint("Tangent", 46, 2, 47, 1),
    Sketcher.Constraint("Tangent", 47, 2, 42, 1),
    Sketcher.Constraint("Tangent", 48, 2, 49, 1),
    Sketcher.Constraint("Tangent", 49, 2, 50, 1),
    Sketcher.Constraint("Tangent", 50, 2, 51, 1),
    Sketcher.Constraint("Tangent", 51, 2, 48, 1),
    Sketcher.Constraint("Tangent", 52, 2, 53, 1),
    Sketcher.Constraint("Tangent", 53, 2, 54, 1),
    Sketcher.Constraint("Tangent", 54, 2, 55, 1),
    Sketcher.Constraint("Tangent", 55, 2, 52, 1),
    Sketcher.Constraint("Tangent", 56, 2, 57, 1),
    Sketcher.Constraint("Tangent", 57, 2, 58, 1),
    Sketcher.Constraint("Tangent", 58, 2, 59, 1),
    Sketcher.Constraint("Tangent", 59, 2, 56, 1),
    Sketcher.Constraint("Tangent", 60, 2, 61, 1),
    Sketcher.Constraint("Tangent", 61, 2, 62, 1),
    Sketcher.Constraint("Tangent", 62, 2, 63, 1),
    Sketcher.Constraint("Tangent", 63, 2, 60, 1),
    Sketcher.Constraint("Tangent", 64, 2, 65, 1),
    Sketcher.Constraint("Tangent", 65, 2, 66, 1),
    Sketcher.Constraint("Tangent", 66, 2, 67, 1),
    Sketcher.Constraint("Tangent", 67, 2, 64, 1),
    Sketcher.Constraint("Tangent", 68, 2, 69, 1),
    Sketcher.Constraint("Tangent", 69, 2, 70, 1),
    Sketcher.Constraint("Tangent", 70, 2, 71, 1),
    Sketcher.Constraint("Tangent", 71, 2, 68, 1),
    Sketcher.Constraint("Tangent", 72, 2, 73, 1),
    Sketcher.Constraint("Tangent", 73, 2, 74, 1),
    Sketcher.Constraint("Tangent", 74, 2, 75, 1),
    Sketcher.Constraint("Tangent", 75, 2, 72, 1),
    Sketcher.Constraint("Tangent", 76, 2, 77, 1),
    Sketcher.Constraint("Tangent", 77, 2, 78, 1),
    Sketcher.Constraint("Tangent", 78, 2, 79, 1),
    Sketcher.Constraint("Tangent", 79, 2, 76, 1),
    Sketcher.Constraint("Tangent", 80, 2, 81, 1),
    Sketcher.Constraint("Tangent", 81, 2, 82, 1),
    Sketcher.Constraint("Tangent", 82, 2, 83, 1),
    Sketcher.Constraint("Tangent", 83, 2, 80, 1),
    Sketcher.Constraint("Horizontal", 0),
    Sketcher.Constraint("Horizontal", 7),
    Sketcher.Constraint("Vertical", 13),
    Sketcher.Constraint("Vertical", 18),
    Sketcher.Constraint("Horizontal", 29),
    Sketcher.Constraint("Vertical", 31),
    Sketcher.Constraint("Vertical", 39),
    Sketcher.Constraint("Horizontal", 45),
    Sketcher.Constraint("Vertical", 49),
    Sketcher.Constraint("Vertical", 51),
    Sketcher.Constraint("Vertical", 53),
    Sketcher.Constraint("Vertical", 55),
    Sketcher.Constraint("Vertical", 57),
    Sketcher.Constraint("Vertical", 59),
    Sketcher.Constraint("Vertical", 61),
    Sketcher.Constraint("Vertical", 63),
    Sketcher.Constraint("Vertical", 65),
    Sketcher.Constraint("Vertical", 67),
    Sketcher.Constraint("Horizontal", 69),
    Sketcher.Constraint("Horizontal", 71),
    Sketcher.Constraint("Horizontal", 73),
    Sketcher.Constraint("Horizontal", 75),
    Sketcher.Constraint("Horizontal", 77),
    Sketcher.Constraint("Horizontal", 79),
    Sketcher.Constraint("Horizontal", 81),
    Sketcher.Constraint("Horizontal", 83),
    Sketcher.Constraint("Equal", 1, 3),
    Sketcher.Constraint("Equal", 3, 5),
    Sketcher.Constraint("Equal", 5, 6),
    Sketcher.Constraint("Equal", 6, 8),
    Sketcher.Constraint("Equal", 8, 10),
    Sketcher.Constraint("Equal", 10, 12),
    Sketcher.Constraint("Equal", 12, 14),
    Sketcher.Constraint("Equal", 14, 16),
    Sketcher.Constraint("Equal", 16, 19),
    Sketcher.Constraint("Equal", 19, 21),
    Sketcher.Constraint("Equal", 21, 23),
    Sketcher.Constraint("Equal", 23, 24),
    Sketcher.Constraint("Equal", 24, 26),
    Sketcher.Constraint("Equal", 26, 28),
    Sketcher.Constraint("Equal", 28, 30),
    Sketcher.Constraint("Equal", 30, 32),
    Sketcher.Constraint("Equal", 32, 34),
    Sketcher.Constraint("Equal", 34, 36),
    Sketcher.Constraint("Equal", 36, 38),
    Sketcher.Constraint("Equal", 38, 40),
    Sketcher.Constraint("Equal", 40, 42),
    Sketcher.Constraint("Equal", 42, 44),
    Sketcher.Constraint("Equal", 44, 46),
    Sketcher.Constraint("Equal", 46, 48),
    Sketcher.Constraint("Equal", 50, 52),
    Sketcher.Constraint("Equal", 54, 56),
    Sketcher.Constraint("Equal", 58, 60),
    Sketcher.Constraint("Equal", 62, 64),
    Sketcher.Constraint("Equal", 70, 72),
    Sketcher.Constraint("Equal", 74, 76),
    Sketcher.Constraint("Equal", 78, 80),
    Sketcher.Constraint("Symmetric", 8, 3, 24, 3, -1, 1),
    Sketcher.Constraint("Symmetric", 10, 3, 26, 3, -1, 1),
    Sketcher.Constraint("Symmetric", 12, 3, 30, 3, -1, 1),
    Sketcher.Constraint("Symmetric", 16, 3, 34, 3, -1, 1),
    Sketcher.Constraint("Symmetric", 21, 3, 36, 3, -1, 1),
    Sketcher.Constraint("Symmetric", 23, 3, 38, 3, -1, 1),
    Sketcher.Constraint("Symmetric", 3, 3, 42, 3, -1, 1),
    Sketcher.Constraint("Symmetric", 5, 3, 44, 3, -1, 1),
    Sketcher.Constraint("Symmetric", 12, 3, 19, 3, -2),
    Sketcher.Constraint("Symmetric", 16, 3, 21, 3, -2),
    Sketcher.Constraint("Symmetric", 52, 3, 60, 3, -2),
    Sketcher.Constraint("Symmetric", 48, 3, 64, 3, -2),
    Sketcher.Constraint("Symmetric", 2, 2, 3, 2, -2),
    Sketcher.Constraint("Symmetric", 9, 2, 10, 2, -2),
    Sketcher.Constraint("PointOnObject", 56, 3, -2),
    Sketcher.Constraint("Parallel", 2, 9),
    Sketcher.Constraint("Parallel", 11, 15),
    Sketcher.Constraint("Parallel", 9, 17),
    Sketcher.Constraint("Parallel", 17, 22),
    Sketcher.Constraint("Parallel", 20, 27),
    Sketcher.Constraint("Parallel", 27, 33),
    Sketcher.Constraint("Parallel", 33, 41),
    Sketcher.Constraint("Parallel", 37, 47),
    Sketcher.Constraint("Horizontal", 48, 3, 52, 3),
    Sketcher.Constraint("Horizontal", 50, 3, 54, 3),
    Sketcher.Constraint("Horizontal", 52, 3, 56, 3),
    Sketcher.Constraint("Horizontal", 54, 3, 58, 3),
    Sketcher.Constraint("Horizontal", 58, 3, 62, 3),
    Sketcher.Constraint("Horizontal", 62, 3, 66, 3),
    Sketcher.Constraint("Vertical", 1, 3, 6, 3),
    Sketcher.Constraint("Vertical", 40, 3, 48, 3),
    Sketcher.Constraint("Vertical", 68, 3, 72, 3),
    Sketcher.Constraint("Vertical", 70, 3, 74, 3),
    Sketcher.Constraint("Vertical", 72, 3, 76, 3),
    Sketcher.Constraint("Vertical", 74, 3, 78, 3),
    Sketcher.Constraint("Vertical", 76, 3, 80, 3),
    Sketcher.Constraint("Vertical", 78, 3, 82, 3),
    Sketcher.Constraint("Radius", 1, 1.0),
    Sketcher.Constraint("DistanceX", 69, 1, 69, 2, 14.0),
    Sketcher.Constraint("DistanceY", 49, 2, 49, 1, 24.0),
    Sketcher.Constraint("Radius", 68, 1.25),
    Sketcher.Constraint("DistanceY", -1, 1, 1, 3, 29.0),
    Sketcher.Constraint("DistanceX", 12, 3, -1, 1, 10.0),
    Sketcher.Constraint("DistanceY", -1, 1, 48, 3, 62.0),
    Sketcher.Constraint("DistanceX", 52, 3, -1, 1, 5.0),
    Sketcher.Constraint("DistanceX", 68, 3, -1, 1, 7.0),
    Sketcher.Constraint("DistanceY", 68, 3, -1, 1, 52.0),
    Sketcher.Constraint("DistanceY", 72, 3, -1, 1, 46.0),
    Sketcher.Constraint("DistanceY", 76, 3, -1, 1, 40.0),
    Sketcher.Constraint("DistanceY", 80, 3, -1, 1, 34.0),
    Sketcher.Constraint("DistanceY", -1, 1, 6, 3, 3.5),
    Sketcher.Constraint("DistanceY", -1, 1, 16, 3, 16.25),
    Sketcher.Constraint("Distance", 15, 10.88281),
    Sketcher.Constraint("DistanceX", 0, 2, 0, 1, 13.996876),
    Sketcher.Constraint("DistanceY", 13, 2, 13, 1, 16.996094),
])
pocket1 = body.newObject("PartDesign::Pocket", "Pocket")
pocket1.Profile = sketch2
pocket1.Length = 25

doc.recompute()
